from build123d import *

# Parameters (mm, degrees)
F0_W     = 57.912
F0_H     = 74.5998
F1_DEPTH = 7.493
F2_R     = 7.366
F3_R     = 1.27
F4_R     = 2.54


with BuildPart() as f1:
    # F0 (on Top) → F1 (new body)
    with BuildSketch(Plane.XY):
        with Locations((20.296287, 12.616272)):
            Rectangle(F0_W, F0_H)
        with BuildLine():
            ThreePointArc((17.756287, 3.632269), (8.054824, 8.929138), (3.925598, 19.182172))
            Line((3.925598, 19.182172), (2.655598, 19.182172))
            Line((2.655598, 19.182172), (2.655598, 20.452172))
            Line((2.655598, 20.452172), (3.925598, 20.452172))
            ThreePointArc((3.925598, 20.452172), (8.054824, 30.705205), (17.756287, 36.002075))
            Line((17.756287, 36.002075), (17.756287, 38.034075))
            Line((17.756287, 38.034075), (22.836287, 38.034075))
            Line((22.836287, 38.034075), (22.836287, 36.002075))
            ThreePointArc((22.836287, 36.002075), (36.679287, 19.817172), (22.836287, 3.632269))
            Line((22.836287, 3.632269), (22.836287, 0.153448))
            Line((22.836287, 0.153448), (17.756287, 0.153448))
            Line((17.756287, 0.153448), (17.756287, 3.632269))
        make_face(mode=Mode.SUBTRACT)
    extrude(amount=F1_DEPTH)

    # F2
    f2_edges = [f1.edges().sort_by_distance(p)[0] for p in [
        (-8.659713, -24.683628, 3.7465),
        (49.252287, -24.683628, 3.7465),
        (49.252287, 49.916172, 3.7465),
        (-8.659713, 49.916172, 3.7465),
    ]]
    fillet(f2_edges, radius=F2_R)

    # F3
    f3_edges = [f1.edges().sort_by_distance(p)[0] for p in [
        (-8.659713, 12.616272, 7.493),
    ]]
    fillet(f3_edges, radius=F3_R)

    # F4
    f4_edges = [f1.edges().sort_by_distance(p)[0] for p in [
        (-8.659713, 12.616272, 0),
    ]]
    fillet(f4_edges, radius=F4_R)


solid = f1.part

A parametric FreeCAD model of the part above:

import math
import FreeCAD as App
import Part
import Sketcher
Q = App.Units.Quantity


def edges_at(feature, points):
    """Names of the edges that pass closest to the given points."""
    edges = feature.Shape.Edges
    near = lambda p: min(range(len(edges)), key=lambda i: edges[i].distToShape(Part.Vertex(*p))[0])
    return sorted({f"Edge{near(p) + 1}" for p in points})


def add_polygon(sketch, points):
    """Adds a closed chain of lines whose ends are joined by coincident constraints."""
    first, n = sketch.GeometryCount, len(points)
    for a, b in zip(points, points[1:] + points[:1]):
        sketch.addGeometry(Part.LineSegment(App.Vector(*a, 0), App.Vector(*b, 0)), False)
    for i in range(n):
        sketch.addConstraint(Sketcher.Constraint("Coincident", first + i, 2, first + (i + 1) % n, 1))

doc = App.newDocument("Part")
params = doc.addObject("Spreadsheet::Sheet", "Params")
for row, (alias, value) in enumerate([
    ("sketch1_width", "0.2 in"),
    ("sketch1_radius", "0.6449999 in"),
    ("sketch1_width2", "2.28 in"),
    ("sketch1_width3", "0.05 in"),
    ("sketch1_height", "0.08 in"),
    ("pad1_length", "0.295 in"),
    ("fillet_radius", "0.29 in"),
    ("fillet2_radius", "0.05 in"),
    ("fillet3_radius", "0.1 in"),
], start=1):
    params.set(f"A{row}", alias)
    params.set(f"B{row}", "=" + value)
    params.setAlias(f"B{row}", alias)

body = doc.addObject("PartDesign::Body", "Body")

sketch1 = doc.addObject("Sketcher::SketchObject", "Sketch")
body.addObject(sketch1)
sketch1.AttachmentSupport = (doc.XY_Plane, [""])
sketch1.MapMode = "FlatFace"
add_polygon(sketch1, [(-8.7, 49.9), (-8.7, -24.7), (49.3, -24.7), (49.3, 49.9)])
sketch1.addGeometry(Part.LineSegment(App.Vector(17.8, 0.2, 0), App.Vector(17.8, 3.6, 0)), False)
sketch1.addGeometry(Part.ArcOfCircle(Part.Circle(App.Vector(20.3, 19.8, 0), App.Vector(0, 0, 1), 16.4), math.radians(-178), math.radians(-99)), False)
sketch1.addGeometry(Part.LineSegment(App.Vector(3.9, 19.2, 0), App.Vector(2.7, 19.2, 0)), False)
sketch1.addGeometry(Part.LineSegment(App.Vector(2.7, 19.2, 0), App.Vector(2.7, 20.5, 0)), False)
sketch1.addGeometry(Part.LineSegment(App.Vector(2.7, 20.5, 0), App.Vector(3.9, 20.5, 0)), False)
sketch1.addGeometry(Part.ArcOfCircle(Part.Circle(App.Vector(20.3, 19.8, 0), App.Vector(0, 0, 1), 16.4), math.radians(99), math.radians(178)), False)
sketch1.addGeometry(Part.LineSegment(App.Vector(17.8, 36, 0), App.Vector(17.8, 38, 0)), False)
sketch1.addGeometry(Part.LineSegment(App.Vector(17.8, 38, 0), App.Vector(22.8, 38, 0)), False)
sketch1.addGeometry(Part.LineSegment(App.Vector(22.8, 38, 0), App.Vector(22.8, 36, 0)), False)
sketch1.addGeometry(Part.ArcOfCircle(Part.Circle(App.Vector(20.3, 19.8, 0), App.Vector(0, 0, 1), 16.4), math.radians(-81), math.radians(81)), False)
sketch1.addGeometry(Part.LineSegment(App.Vector(22.8, 3.6, 0), App.Vector(22.8, 0.2, 0)), False)
sketch1.addGeometry(Part.LineSegment(App.Vector(22.8, 0.2, 0), App.Vector(17.8, 0.2, 0)), False)
sketch1.addConstraint(Sketcher.Constraint("Coincident", 4, 2, 5, 2))
sketch1.addConstraint(Sketcher.Constraint("Coincident", 5, 1, 6, 1))
sketch1.addConstraint(Sketcher.Constraint("Coincident", 6, 2, 7, 1))
sketch1.addConstraint(Sketcher.Constraint("Coincident", 7, 2, 8, 1))
sketch1.addConstraint(Sketcher.Constraint("Coincident", 8, 2, 9, 2))
sketch1.addConstraint(Sketcher.Constraint("Coincident", 9, 1, 10, 1))
sketch1.addConstraint(Sketcher.Constraint("Coincident", 10, 2, 11, 1))
sketch1.addConstraint(Sketcher.Constraint("Coincident", 11, 2, 12, 1))
sketch1.addConstraint(Sketcher.Constraint("Coincident", 12, 2, 13, 2))
sketch1.addConstraint(Sketcher.Constraint("Coincident", 13, 1, 14, 1))
sketch1.addConstraint(Sketcher.Constraint("Coincident", 14, 2, 15, 1))
sketch1.addConstraint(Sketcher.Constraint("Coincident", 15, 2, 4, 1))
sketch1.addConstraint(Sketcher.Constraint("Vertical", 0))
sketch1.addConstraint(Sketcher.Constraint("Horizontal", 1))
sketch1.addConstraint(Sketcher.Constraint("Vertical", 2))
sketch1.addConstraint(Sketcher.Constraint("Horizontal", 3))
sketch1.addConstraint(Sketcher.Constraint("Vertical", 4))
sketch1.addConstraint(Sketcher.Constraint("Horizontal", 6))
sketch1.addConstraint(Sketcher.Constraint("Vertical", 7))
sketch1.addConstraint(Sketcher.Constraint("Horizontal", 8))
sketch1.addConstraint(Sketcher.Constraint("Vertical", 10))
sketch1.addConstraint(Sketcher.Constraint("Horizontal", 11))
sketch1.addConstraint(Sketcher.Constraint("Vertical", 12))
sketch1.addConstraint(Sketcher.Constraint("Vertical", 14))
sketch1.addConstraint(Sketcher.Constraint("Horizontal", 15))
sketch1.addConstraint(Sketcher.Constraint("Coincident", 9, 3, 5, 3))
sketch1.addConstraint(Sketcher.Constraint("Coincident", 13, 3, 5, 3))
sketch1.addConstraint(Sketcher.Constraint("Equal", 9, 13))
sketch1.addConstraint(Sketcher.Constraint("Horizontal", 9, 1, 12, 2))
sketch1.addConstraint(Sketcher.Constraint("Horizontal", 4, 2, 13, 1))
sketch1.addConstraint(Sketcher.Constraint("Vertical", 5, 1, 8, 2))
sketch1.addConstraint(Sketcher.Constraint("Vertical", 4, 2, 9, 1))
sketch1.addConstraint(Sketcher.Constraint("Vertical", 12, 2, 13, 1))
sketch1.addConstraint(Sketcher.Constraint("Equal", 8, 7))
sketch1.addConstraint(Sketcher.Constraint("DistanceX", 11, 1, 11, 2, Q("0.2 in")))
sketch1.addConstraint(Sketcher.Constraint("Radius", 5, Q("0.6449999 in")))
sketch1.addConstraint(Sketcher.Constraint("DistanceX", 1, 1, 1, 2, Q("2.28 in")))
sketch1.addConstraint(Sketcher.Constraint("DistanceX", 6, 2, 6, 1, Q("0.05 in")))
sketch1.addConstraint(Sketcher.Constraint("DistanceY", 10, 1, 10, 2, Q("0.08 in")))
sketch1.addConstraint(Sketcher.Constraint("DistanceY", 0, 2, 0, 1, Q("2.937 in")))
sketch1.addConstraint(Sketcher.Constraint("DistanceX", 0, 2, 5, 3, Q("1.1399999 in")))
sketch1.addConstraint(Sketcher.Constraint("DistanceY", 5, 1, 3, 2, Q("1.21 in")))
sketch1.addConstraint(Sketcher.Constraint("DistanceY", 4, 1, 4, 2, Q("3.478821 mm")))
sketch1.addConstraint(Sketcher.Constraint("DistanceY", -1, 1, 5, 3, Q("19.81717 mm")))
sketch1.addConstraint(Sketcher.Constraint("DistanceX", -1, 1, 5, 3, Q("20.296285 mm")))
sketch1.setExpression("Constraints[38]", "Params.sketch1_width")
sketch1.setExpression("Constraints[39]", "Params.sketch1_radius")
sketch1.setExpression("Constraints[40]", "Params.sketch1_width2")
sketch1.setExpression("Constraints[41]", "Params.sketch1_width3")
sketch1.setExpression("Constraints[42]", "Params.sketch1_height")
pad1 = doc.addObject("PartDesign::Pad", "Pad")
body.addObject(pad1)
pad1.Profile = sketch1
pad1.setExpression("Length", "Params.pad1_length")
doc.recompute()

fillet = doc.addObject("PartDesign::Fillet", "Fillet")
body.addObject(fillet)
fillet.Base = (pad1, edges_at(pad1, [
    (-8.66, -24.684, 3.747),
    (49.252, -24.684, 3.747),
    (49.252, 49.916, 3.747),
    (-8.66, 49.916, 3.747),
]))
fillet.setExpression("Radius", "Params.fillet_radius")
doc.recompute()

fillet2 = doc.addObject("PartDesign::Fillet", "Fillet001")
body.addObject(fillet2)
fillet2.Base = (fillet, edges_at(fillet, [(-8.66, 12.616, 7.493)]))
fillet2.setExpression("Radius", "Params.fillet2_radius")
doc.recompute()

fillet3 = doc.addObject("PartDesign::Fillet", "Fillet002")
body.addObject(fillet3)
fillet3.Base = (fillet2, edges_at(fillet2, [(-8.66, 12.616, 0)]))
fillet3.setExpression("Radius", "Params.fillet3_radius")

doc.recompute()
